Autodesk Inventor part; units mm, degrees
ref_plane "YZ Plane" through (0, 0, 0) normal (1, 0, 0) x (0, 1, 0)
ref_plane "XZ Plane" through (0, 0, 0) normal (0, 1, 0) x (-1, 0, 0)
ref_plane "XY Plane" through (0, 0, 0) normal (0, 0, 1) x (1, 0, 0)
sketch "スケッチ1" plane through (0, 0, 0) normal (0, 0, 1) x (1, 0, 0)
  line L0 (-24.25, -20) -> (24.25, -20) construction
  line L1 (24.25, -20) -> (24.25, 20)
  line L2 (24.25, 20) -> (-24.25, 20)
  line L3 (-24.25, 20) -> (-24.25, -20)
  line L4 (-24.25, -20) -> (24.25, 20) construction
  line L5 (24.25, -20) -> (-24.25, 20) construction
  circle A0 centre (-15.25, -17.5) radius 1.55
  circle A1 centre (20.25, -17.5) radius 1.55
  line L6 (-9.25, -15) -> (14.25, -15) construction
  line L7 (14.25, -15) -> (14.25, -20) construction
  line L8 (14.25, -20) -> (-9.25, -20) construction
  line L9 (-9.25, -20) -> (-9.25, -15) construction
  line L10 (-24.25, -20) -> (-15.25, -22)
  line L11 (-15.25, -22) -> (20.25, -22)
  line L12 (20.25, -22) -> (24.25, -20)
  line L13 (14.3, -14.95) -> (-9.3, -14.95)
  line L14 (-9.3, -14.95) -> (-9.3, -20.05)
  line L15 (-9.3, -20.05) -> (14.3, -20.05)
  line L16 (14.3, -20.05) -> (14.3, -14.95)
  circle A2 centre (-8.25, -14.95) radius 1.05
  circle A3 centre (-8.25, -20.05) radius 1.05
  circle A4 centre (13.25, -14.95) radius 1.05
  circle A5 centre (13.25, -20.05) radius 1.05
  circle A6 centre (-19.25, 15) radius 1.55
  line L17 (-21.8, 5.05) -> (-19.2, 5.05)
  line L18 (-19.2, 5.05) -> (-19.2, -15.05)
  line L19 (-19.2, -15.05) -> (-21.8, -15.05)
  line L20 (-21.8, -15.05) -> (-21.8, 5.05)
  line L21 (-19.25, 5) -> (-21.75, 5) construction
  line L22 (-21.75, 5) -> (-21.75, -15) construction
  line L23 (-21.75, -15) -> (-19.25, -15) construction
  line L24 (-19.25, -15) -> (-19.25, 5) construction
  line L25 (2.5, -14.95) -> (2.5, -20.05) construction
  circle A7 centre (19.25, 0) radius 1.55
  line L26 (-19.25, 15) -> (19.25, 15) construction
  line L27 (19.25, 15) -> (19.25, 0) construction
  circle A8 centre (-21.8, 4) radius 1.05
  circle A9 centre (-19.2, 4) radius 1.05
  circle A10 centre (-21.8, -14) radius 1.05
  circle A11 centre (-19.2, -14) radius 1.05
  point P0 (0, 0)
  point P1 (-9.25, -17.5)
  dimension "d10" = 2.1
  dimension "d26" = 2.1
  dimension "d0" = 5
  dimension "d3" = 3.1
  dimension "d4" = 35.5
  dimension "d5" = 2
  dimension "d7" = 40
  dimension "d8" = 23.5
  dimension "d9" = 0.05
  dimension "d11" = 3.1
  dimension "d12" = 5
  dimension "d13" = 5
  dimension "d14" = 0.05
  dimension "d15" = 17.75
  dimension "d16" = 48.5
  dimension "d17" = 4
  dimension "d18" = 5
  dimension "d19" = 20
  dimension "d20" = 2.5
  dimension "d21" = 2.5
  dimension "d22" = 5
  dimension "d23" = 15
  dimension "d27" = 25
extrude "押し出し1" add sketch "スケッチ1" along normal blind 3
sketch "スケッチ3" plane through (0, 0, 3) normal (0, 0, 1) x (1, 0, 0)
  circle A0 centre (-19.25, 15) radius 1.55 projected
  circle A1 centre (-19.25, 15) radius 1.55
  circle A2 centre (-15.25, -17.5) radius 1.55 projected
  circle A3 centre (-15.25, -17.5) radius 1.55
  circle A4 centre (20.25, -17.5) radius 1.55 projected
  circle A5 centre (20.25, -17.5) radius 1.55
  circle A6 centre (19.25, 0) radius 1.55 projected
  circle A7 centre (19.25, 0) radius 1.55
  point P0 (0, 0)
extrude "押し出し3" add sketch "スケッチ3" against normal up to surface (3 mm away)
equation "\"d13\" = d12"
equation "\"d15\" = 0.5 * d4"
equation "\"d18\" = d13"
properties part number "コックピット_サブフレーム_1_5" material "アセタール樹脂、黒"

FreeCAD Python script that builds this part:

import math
import FreeCAD as App
import Part
import Sketcher
from FreeCAD import Vector

doc = App.newDocument("Part")
body = doc.addObject("PartDesign::Body", "Body")

# Sketch on XY plane
sketch1 = doc.addObject("Sketcher::SketchObject", "Sketch")
body.addObject(sketch1)
sketch1.AttachmentSupport = (doc.XY_Plane, [""])
sketch1.MapMode = "FlatFace"
sketch1.addGeometry(Part.LineSegment(Vector(20.25, -22, 0), Vector(24.25, -20, 0)), False)
sketch1.addGeometry(Part.LineSegment(Vector(24.25, -20, 0), Vector(24.25, 20, 0)), False)
sketch1.addGeometry(Part.LineSegment(Vector(24.25, 20, 0), Vector(-24.25, 20, 0)), False)
sketch1.addGeometry(Part.LineSegment(Vector(-24.25, 20, 0), Vector(-24.25, -20, 0)), False)
sketch1.addGeometry(Part.LineSegment(Vector(-24.25, -20, 0), Vector(-15.25, -22, 0)), False)
sketch1.addGeometry(Part.LineSegment(Vector(-15.25, -22, 0), Vector(20.25, -22, 0)), False)
sketch1.addGeometry(Part.Circle(Vector(-15.25, -17.5, 0), Vector(0, 0, 1), 1.55), False)
sketch1.addGeometry(Part.ArcOfCircle(Part.Circle(Vector(-21.8, 4, 0), Vector(0, 0, 1), 1.05), math.radians(90), math.radians(270)), False)
sketch1.addGeometry(Part.LineSegment(Vector(-21.8, 5.05, 0), Vector(-19.2, 5.05, 0)), False)
sketch1.addGeometry(Part.ArcOfCircle(Part.Circle(Vector(-19.2, 4, 0), Vector(0, 0, 1), 1.05), math.radians(-90), math.radians(90)), False)
sketch1.addGeometry(Part.LineSegment(Vector(-19.2, 2.95, 0), Vector(-19.2, -12.95, 0)), False)
sketch1.addGeometry(Part.ArcOfCircle(Part.Circle(Vector(-19.2, -14, 0), Vector(0, 0, 1), 1.05), math.radians(-90), math.radians(90)), False)
sketch1.addGeometry(Part.LineSegment(Vector(-19.2, -15.05, 0), Vector(-21.8, -15.05, 0)), False)
sketch1.addGeometry(Part.ArcOfCircle(Part.Circle(Vector(-21.8, -14, 0), Vector(0, 0, 1), 1.05), math.radians(90), math.radians(270)), False)
sketch1.addGeometry(Part.LineSegment(Vector(-21.8, -12.95, 0), Vector(-21.8, 2.95, 0)), False)
sketch1.addGeometry(Part.ArcOfCircle(Part.Circle(Vector(-8.25, -14.95, 0), Vector(0, 0, 1), 1.05), math.radians(0), math.radians(180)), False)
sketch1.addGeometry(Part.LineSegment(Vector(-7.2, -14.95, 0), Vector(12.2, -14.95, 0)), False)
sketch1.addGeometry(Part.ArcOfCircle(Part.Circle(Vector(13.25, -14.95, 0), Vector(0, 0, 1), 1.05), math.radians(0), math.radians(180)), False)
sketch1.addGeometry(Part.LineSegment(Vector(14.3, -14.95, 0), Vector(14.3, -20.05, 0)), False)
sketch1.addGeometry(Part.ArcOfCircle(Part.Circle(Vector(13.25, -20.05, 0), Vector(0, 0, 1), 1.05), math.radians(180), math.radians(360)), False)
sketch1.addGeometry(Part.LineSegment(Vector(12.2, -20.05, 0), Vector(-7.2, -20.05, 0)), False)
sketch1.addGeometry(Part.ArcOfCircle(Part.Circle(Vector(-8.25, -20.05, 0), Vector(0, 0, 1), 1.05), math.radians(180), math.radians(360)), False)
sketch1.addGeometry(Part.LineSegment(Vector(-9.3, -20.05, 0), Vector(-9.3, -14.95, 0)), False)
sketch1.addGeometry(Part.Circle(Vector(20.25, -17.5, 0), Vector(0, 0, 1), 1.55), False)
sketch1.addGeometry(Part.Circle(Vector(-19.25, 15, 0), Vector(0, 0, 1), 1.55), False)
sketch1.addGeometry(Part.Circle(Vector(19.25, 0, 0), Vector(0, 0, 1), 1.55), False)
sketch1.addConstraint(Sketcher.Constraint("Coincident", 0, 2, 1, 1))
sketch1.addConstraint(Sketcher.Constraint("Coincident", 1, 2, 2, 1))
sketch1.addConstraint(Sketcher.Constraint("Coincident", 2, 2, 3, 1))
sketch1.addConstraint(Sketcher.Constraint("Coincident", 3, 2, 4, 1))
sketch1.addConstraint(Sketcher.Constraint("Coincident", 4, 2, 5, 1))
sketch1.addConstraint(Sketcher.Constraint("Coincident", 5, 2, 0, 1))
sketch1.addConstraint(Sketcher.Constraint("Tangent", 7, 1, 8, 1))
sketch1.addConstraint(Sketcher.Constraint("Tangent", 8, 2, 9, 2))
sketch1.addConstraint(Sketcher.Constraint("Coincident", 9, 1, 10, 1))
sketch1.addConstraint(Sketcher.Constraint("Coincident", 10, 2, 11, 2))
sketch1.addConstraint(Sketcher.Constraint("Tangent", 11, 1, 12, 1))
sketch1.addConstraint(Sketcher.Constraint("Tangent", 12, 2, 13, 2))
sketch1.addConstraint(Sketcher.Constraint("Coincident", 13, 1, 14, 1))
sketch1.addConstraint(Sketcher.Constraint("Coincident", 14, 2, 7, 2))
sketch1.addConstraint(Sketcher.Constraint("Coincident", 15, 1, 16, 1))
sketch1.addConstraint(Sketcher.Constraint("Coincident", 16, 2, 17, 2))
sketch1.addConstraint(Sketcher.Constraint("Tangent", 17, 1, 18, 1))
sketch1.addConstraint(Sketcher.Constraint("Tangent", 18, 2, 19, 2))
sketch1.addConstraint(Sketcher.Constraint("Coincident", 19, 1, 20, 1))
sketch1.addConstraint(Sketcher.Constraint("Coincident", 20, 2, 21, 2))
sketch1.addConstraint(Sketcher.Constraint("Tangent", 21, 1, 22, 1))
sketch1.addConstraint(Sketcher.Constraint("Tangent", 22, 2, 15, 2))
sketch1.addConstraint(Sketcher.Constraint("Vertical", 1))
sketch1.addConstraint(Sketcher.Constraint("Horizontal", 2))
sketch1.addConstraint(Sketcher.Constraint("Vertical", 3))
sketch1.addConstraint(Sketcher.Constraint("Horizontal", 5))
sketch1.addConstraint(Sketcher.Constraint("Horizontal", 8))
sketch1.addConstraint(Sketcher.Constraint("Vertical", 10))
sketch1.addConstraint(Sketcher.Constraint("Horizontal", 12))
sketch1.addConstraint(Sketcher.Constraint("Vertical", 14))
sketch1.addConstraint(Sketcher.Constraint("Horizontal", 16))
sketch1.addConstraint(Sketcher.Constraint("Vertical", 18))
sketch1.addConstraint(Sketcher.Constraint("Horizontal", 20))
sketch1.addConstraint(Sketcher.Constraint("Vertical", 22))
sketch1.addConstraint(Sketcher.Constraint("Equal", 7, 9))
sketch1.addConstraint(Sketcher.Constraint("Equal", 9, 11))
sketch1.addConstraint(Sketcher.Constraint("Equal", 11, 13))
sketch1.addConstraint(Sketcher.Constraint("Equal", 13, 15))
sketch1.addConstraint(Sketcher.Constraint("Equal", 15, 17))
sketch1.addConstraint(Sketcher.Constraint("Equal", 17, 19))
sketch1.addConstraint(Sketcher.Constraint("Equal", 19, 21))
sketch1.addConstraint(Sketcher.Constraint("Equal", 6, 23))
sketch1.addConstraint(Sketcher.Constraint("Equal", 23, 24))
sketch1.addConstraint(Sketcher.Constraint("Equal", 24, 25))
sketch1.addConstraint(Sketcher.Constraint("Symmetric", 0, 2, 2, 2, -1, 1))
sketch1.addConstraint(Sketcher.Constraint("PointOnObject", 25, 3, -1))
sketch1.addConstraint(Sketcher.Constraint("Horizontal", 15, 3, 17, 3))
sketch1.addConstraint(Sketcher.Constraint("Horizontal", 19, 3, 21, 3))
sketch1.addConstraint(Sketcher.Constraint("Horizontal", 6, 3, 23, 3))
sketch1.addConstraint(Sketcher.Constraint("Horizontal", 0, 2, 3, 2))
sketch1.addConstraint(Sketcher.Constraint("Horizontal", 17, 3, 15, 1))
sketch1.addConstraint(Sketcher.Constraint("Horizontal", 18, 2, 19, 1))
sketch1.addConstraint(Sketcher.Constraint("Vertical", 9, 3, 11, 3))
sketch1.addConstraint(Sketcher.Constraint("Vertical", 7, 3, 13, 3))
sketch1.addConstraint(Sketcher.Constraint("Vertical", 6, 3, 4, 2))
sketch1.addConstraint(Sketcher.Constraint("Vertical", 23, 3, 5, 2))
sketch1.addConstraint(Sketcher.Constraint("Vertical", 8, 2, 9, 1))
sketch1.addConstraint(Sketcher.Constraint("Vertical", 12, 2, 13, 1))
sketch1.addConstraint(Sketcher.Constraint("Diameter", 6, 3.1))
sketch1.addConstraint(Sketcher.Constraint("DistanceY", 1, 1, 1, 2, 40.0))
sketch1.addConstraint(Sketcher.Constraint("Radius", 7, 1.05))
sketch1.addConstraint(Sketcher.Constraint("DistanceX", 2, 2, 2, 1, 48.5))
sketch1.addConstraint(Sketcher.Constraint("DistanceX", 5, 1, 5, 2, 35.5))
sketch1.addConstraint(Sketcher.Constraint("DistanceY", -1, 1, 7, 3, 4.0))
sketch1.addConstraint(Sketcher.Constraint("DistanceY", -1, 1, 24, 3, 15.0))
sketch1.addConstraint(Sketcher.Constraint("DistanceX", 23, 3, 0, 2, 4.0))
sketch1.addConstraint(Sketcher.Constraint("DistanceX", 25, 3, 0, 2, 5.0))
sketch1.addConstraint(Sketcher.Constraint("DistanceX", 2, 2, 24, 3, 5.0))
sketch1.addConstraint(Sketcher.Constraint("DistanceY", 4, 2, 3, 2, 2.0))
sketch1.addConstraint(Sketcher.Constraint("DistanceY", 0, 2, 23, 3, 2.5))
sketch1.addConstraint(Sketcher.Constraint("DistanceX", 24, 3, 9, 3, 0.05))
sketch1.addConstraint(Sketcher.Constraint("DistanceY", 19, 3, 0, 2, 0.05))
sketch1.addConstraint(Sketcher.Constraint("DistanceX", 8, 1, 8, 2, 2.6))
sketch1.addConstraint(Sketcher.Constraint("DistanceX", 16, 1, 16, 2, 19.4))
sketch1.addConstraint(Sketcher.Constraint("DistanceY", 10, 2, 10, 1, 15.9))
sketch1.addConstraint(Sketcher.Constraint("DistanceY", 18, 2, 18, 1, 5.1))
sketch1.addConstraint(Sketcher.Constraint("DistanceX", 6, 3, 15, 3, 7.0))
pad1 = doc.addObject("PartDesign::Pad", "Pad")
body.addObject(pad1)
pad1.Profile = sketch1
pad1.Length = 3

# Sketch on XY plane
sketch2 = doc.addObject("Sketcher::SketchObject", "Sketch001")
body.addObject(sketch2)
sketch2.AttachmentSupport = (doc.XY_Plane, [""])
sketch2.MapMode = "FlatFace"
sketch2.AttachmentOffset = App.Placement(Vector(0, 0, 3), App.Rotation())
sketch2.addGeometry(Part.Circle(Vector(-19.25, 15, 0), Vector(0, 0, 1), 1.55), False)
sketch2.addGeometry(Part.Circle(Vector(-15.25, -17.5, 0), Vector(0, 0, 1), 1.55), False)
sketch2.addGeometry(Part.Circle(Vector(20.25, -17.5, 0), Vector(0, 0, 1), 1.55), False)
sketch2.addGeometry(Part.Circle(Vector(19.25, 0, 0), Vector(0, 0, 1), 1.55), False)
sketch2.addConstraint(Sketcher.Constraint("Equal", 0, 1))
sketch2.addConstraint(Sketcher.Constraint("Equal", 1, 2))
sketch2.addConstraint(Sketcher.Constraint("Equal", 2, 3))
sketch2.addConstraint(Sketcher.Constraint("PointOnObject", 3, 3, -1))
sketch2.addConstraint(Sketcher.Constraint("Horizontal", 1, 3, 2, 3))
sketch2.addConstraint(Sketcher.Constraint("Diameter", 0, 3.1))
sketch2.addConstraint(Sketcher.Constraint("DistanceY", -1, 1, 0, 3, 15.0))
sketch2.addConstraint(Sketcher.Constraint("DistanceX", 0, 3, 1, 3, 4.0))
sketch2.addConstraint(Sketcher.Constraint("DistanceX", 3, 3, 2, 3, 1.0))
sketch2.addConstraint(Sketcher.Constraint("DistanceY", 1, 3, -1, 1, 17.5))
sketch2.addConstraint(Sketcher.Constraint("DistanceX", 1, 3, 2, 3, 35.5))
sketch2.addConstraint(Sketcher.Constraint("DistanceX", 0, 3, -1, 1, 19.25))
pad2 = doc.addObject("PartDesign::Pad", "Pad001")
body.addObject(pad2)
pad2.Profile = sketch2
pad2.Length = 3
pad2.Reversed = True

doc.recompute()
